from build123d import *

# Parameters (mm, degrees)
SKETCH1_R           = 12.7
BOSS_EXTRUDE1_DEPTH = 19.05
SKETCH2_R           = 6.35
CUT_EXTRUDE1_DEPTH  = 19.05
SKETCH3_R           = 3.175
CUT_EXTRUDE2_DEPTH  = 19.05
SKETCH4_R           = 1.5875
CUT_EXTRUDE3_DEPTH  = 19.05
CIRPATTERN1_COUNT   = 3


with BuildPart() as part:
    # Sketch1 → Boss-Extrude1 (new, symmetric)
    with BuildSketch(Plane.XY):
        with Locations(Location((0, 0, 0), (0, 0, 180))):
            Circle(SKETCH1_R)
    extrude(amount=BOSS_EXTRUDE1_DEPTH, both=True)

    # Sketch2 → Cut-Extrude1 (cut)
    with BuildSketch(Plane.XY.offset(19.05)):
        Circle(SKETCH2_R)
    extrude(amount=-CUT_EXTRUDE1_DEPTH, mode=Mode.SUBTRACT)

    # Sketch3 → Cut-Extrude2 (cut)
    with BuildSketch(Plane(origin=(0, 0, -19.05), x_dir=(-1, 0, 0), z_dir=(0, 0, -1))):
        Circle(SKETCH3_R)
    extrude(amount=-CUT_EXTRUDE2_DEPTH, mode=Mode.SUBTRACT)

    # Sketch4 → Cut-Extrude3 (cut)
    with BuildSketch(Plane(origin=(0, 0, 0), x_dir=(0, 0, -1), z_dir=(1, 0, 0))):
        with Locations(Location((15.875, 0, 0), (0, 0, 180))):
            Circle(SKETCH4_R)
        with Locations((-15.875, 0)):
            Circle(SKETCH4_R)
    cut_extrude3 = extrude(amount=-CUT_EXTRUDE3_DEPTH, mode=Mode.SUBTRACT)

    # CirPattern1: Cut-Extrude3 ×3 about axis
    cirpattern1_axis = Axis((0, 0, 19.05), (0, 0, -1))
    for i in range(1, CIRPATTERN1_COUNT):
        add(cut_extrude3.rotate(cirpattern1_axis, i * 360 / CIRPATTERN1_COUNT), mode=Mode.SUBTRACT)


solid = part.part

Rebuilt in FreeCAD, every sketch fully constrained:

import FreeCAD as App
import Part
import Sketcher
from FreeCAD import Vector
Q = App.Units.Quantity

doc = App.newDocument("Part")
params = doc.addObject("Spreadsheet::Sheet", "Params")
for row, (alias, value) in enumerate([
    ("sketch1_diameter", "1 in"),
    ("pad1_length", "1.5 in"),
    ("sketch2_diameter", "0.5 in"),
    ("pocket1_length", "0.75 in"),
    ("sketch3_diameter", "0.25 in"),
    ("pocket2_length", "0.75 in"),
    ("sketch4_diameter", "0.125 in"),
    ("pocket3_length", "0.75 in"),
], start=1):
    params.set(f"A{row}", alias)
    params.set(f"B{row}", "=" + value)
    params.setAlias(f"B{row}", alias)

body = doc.addObject("PartDesign::Body", "Body")

# Sketch on XY plane
sketch1 = doc.addObject("Sketcher::SketchObject", "Sketch")
body.addObject(sketch1)
sketch1.AttachmentSupport = (doc.XY_Plane, [""])
sketch1.MapMode = "FlatFace"
sketch1.addGeometry(Part.Circle(Vector(0, 0, 0), Vector(0, 0, 1), 13), False)
sketch1.addConstraint([
    Sketcher.Constraint("Coincident", 0, 3, -1, 1),
    Sketcher.Constraint("Diameter", 0, Q("1 in")),
])
sketch1.setExpression("Constraints[1]", "Params.sketch1_diameter")
pad1 = doc.addObject("PartDesign::Pad", "Pad")
body.addObject(pad1)
pad1.Profile = sketch1
pad1.setExpression("Length", "Params.pad1_length")
pad1.Midplane = True

# Sketch on XY plane
sketch2 = doc.addObject("Sketcher::SketchObject", "Sketch001")
body.addObject(sketch2)
sketch2.AttachmentSupport = (doc.XY_Plane, [""])
sketch2.MapMode = "FlatFace"
sketch2.AttachmentOffset = App.Placement(Vector(0, 0, 0.75 * 25.4), App.Rotation())
sketch2.addGeometry(Part.Circle(Vector(0, 0, 0), Vector(0, 0, 1), 6), False)
sketch2.addConstraint([
    Sketcher.Constraint("Coincident", 0, 3, -1, 1),
    Sketcher.Constraint("Diameter", 0, Q("0.5 in")),
])
sketch2.setExpression("Constraints[1]", "Params.sketch2_diameter")
pocket1 = doc.addObject("PartDesign::Pocket", "Pocket")
body.addObject(pocket1)
pocket1.Profile = sketch2
pocket1.setExpression("Length", "Params.pocket1_length")

# Sketch on XY plane
sketch3 = doc.addObject("Sketcher::SketchObject", "Sketch002")
body.addObject(sketch3)
sketch3.AttachmentSupport = (doc.XY_Plane, [""])
sketch3.MapMode = "FlatFace"
sketch3.AttachmentOffset = App.Placement(Vector(0, 0, -0.75 * 25.4), App.Rotation())
sketch3.addGeometry(Part.Circle(Vector(0, 0, 0), Vector(0, 0, 1), 3.2), False)
sketch3.addConstraint([
    Sketcher.Constraint("Coincident", 0, 3, -1, 1),
    Sketcher.Constraint("Diameter", 0, Q("0.25 in")),
])
sketch3.setExpression("Constraints[1]", "Params.sketch3_diameter")
pocket2 = doc.addObject("PartDesign::Pocket", "Pocket001")
body.addObject(pocket2)
pocket2.Profile = sketch3
pocket2.setExpression("Length", "Params.pocket2_length")
pocket2.Reversed = True

# Sketch on YZ plane
sketch4 = doc.addObject("Sketcher::SketchObject", "Sketch003")
body.addObject(sketch4)
sketch4.AttachmentSupport = (doc.YZ_Plane, [""])
sketch4.MapMode = "FlatFace"
sketch4.addGeometry([
    Part.Circle(Vector(0, -15.9, 0), Vector(0, 0, 1), 1.6),
    Part.Circle(Vector(0, 15.9, 0), Vector(0, 0, 1), 1.6),
], False)
sketch4.addConstraint([
    Sketcher.Constraint("Equal", 0, 1),
    Sketcher.Constraint("Symmetric", 0, 3, 1, 3, -1, 1),
    Sketcher.Constraint("PointOnObject", 0, 3, -2),
    Sketcher.Constraint("Diameter", 0, Q("0.125 in")),
    Sketcher.Constraint("DistanceY", 0, 3, 1, 3, Q("1.25 in")),
])
sketch4.setExpression("Constraints[3]", "Params.sketch4_diameter")
pocket3 = doc.addObject("PartDesign::Pocket", "Pocket002")
body.addObject(pocket3)
pocket3.Profile = sketch4
pocket3.setExpression("Length", "Params.pocket3_length")
doc.recompute()

polarpattern = doc.addObject("PartDesign::PolarPattern", "PolarPattern")
body.addObject(polarpattern)
polarpattern.Originals = [pocket3]
polarpattern.Axis = (doc.Z_Axis, [""])
polarpattern.Angle = 360
polarpattern.Occurrences = 3
body.Tip = polarpattern

doc.recompute()
